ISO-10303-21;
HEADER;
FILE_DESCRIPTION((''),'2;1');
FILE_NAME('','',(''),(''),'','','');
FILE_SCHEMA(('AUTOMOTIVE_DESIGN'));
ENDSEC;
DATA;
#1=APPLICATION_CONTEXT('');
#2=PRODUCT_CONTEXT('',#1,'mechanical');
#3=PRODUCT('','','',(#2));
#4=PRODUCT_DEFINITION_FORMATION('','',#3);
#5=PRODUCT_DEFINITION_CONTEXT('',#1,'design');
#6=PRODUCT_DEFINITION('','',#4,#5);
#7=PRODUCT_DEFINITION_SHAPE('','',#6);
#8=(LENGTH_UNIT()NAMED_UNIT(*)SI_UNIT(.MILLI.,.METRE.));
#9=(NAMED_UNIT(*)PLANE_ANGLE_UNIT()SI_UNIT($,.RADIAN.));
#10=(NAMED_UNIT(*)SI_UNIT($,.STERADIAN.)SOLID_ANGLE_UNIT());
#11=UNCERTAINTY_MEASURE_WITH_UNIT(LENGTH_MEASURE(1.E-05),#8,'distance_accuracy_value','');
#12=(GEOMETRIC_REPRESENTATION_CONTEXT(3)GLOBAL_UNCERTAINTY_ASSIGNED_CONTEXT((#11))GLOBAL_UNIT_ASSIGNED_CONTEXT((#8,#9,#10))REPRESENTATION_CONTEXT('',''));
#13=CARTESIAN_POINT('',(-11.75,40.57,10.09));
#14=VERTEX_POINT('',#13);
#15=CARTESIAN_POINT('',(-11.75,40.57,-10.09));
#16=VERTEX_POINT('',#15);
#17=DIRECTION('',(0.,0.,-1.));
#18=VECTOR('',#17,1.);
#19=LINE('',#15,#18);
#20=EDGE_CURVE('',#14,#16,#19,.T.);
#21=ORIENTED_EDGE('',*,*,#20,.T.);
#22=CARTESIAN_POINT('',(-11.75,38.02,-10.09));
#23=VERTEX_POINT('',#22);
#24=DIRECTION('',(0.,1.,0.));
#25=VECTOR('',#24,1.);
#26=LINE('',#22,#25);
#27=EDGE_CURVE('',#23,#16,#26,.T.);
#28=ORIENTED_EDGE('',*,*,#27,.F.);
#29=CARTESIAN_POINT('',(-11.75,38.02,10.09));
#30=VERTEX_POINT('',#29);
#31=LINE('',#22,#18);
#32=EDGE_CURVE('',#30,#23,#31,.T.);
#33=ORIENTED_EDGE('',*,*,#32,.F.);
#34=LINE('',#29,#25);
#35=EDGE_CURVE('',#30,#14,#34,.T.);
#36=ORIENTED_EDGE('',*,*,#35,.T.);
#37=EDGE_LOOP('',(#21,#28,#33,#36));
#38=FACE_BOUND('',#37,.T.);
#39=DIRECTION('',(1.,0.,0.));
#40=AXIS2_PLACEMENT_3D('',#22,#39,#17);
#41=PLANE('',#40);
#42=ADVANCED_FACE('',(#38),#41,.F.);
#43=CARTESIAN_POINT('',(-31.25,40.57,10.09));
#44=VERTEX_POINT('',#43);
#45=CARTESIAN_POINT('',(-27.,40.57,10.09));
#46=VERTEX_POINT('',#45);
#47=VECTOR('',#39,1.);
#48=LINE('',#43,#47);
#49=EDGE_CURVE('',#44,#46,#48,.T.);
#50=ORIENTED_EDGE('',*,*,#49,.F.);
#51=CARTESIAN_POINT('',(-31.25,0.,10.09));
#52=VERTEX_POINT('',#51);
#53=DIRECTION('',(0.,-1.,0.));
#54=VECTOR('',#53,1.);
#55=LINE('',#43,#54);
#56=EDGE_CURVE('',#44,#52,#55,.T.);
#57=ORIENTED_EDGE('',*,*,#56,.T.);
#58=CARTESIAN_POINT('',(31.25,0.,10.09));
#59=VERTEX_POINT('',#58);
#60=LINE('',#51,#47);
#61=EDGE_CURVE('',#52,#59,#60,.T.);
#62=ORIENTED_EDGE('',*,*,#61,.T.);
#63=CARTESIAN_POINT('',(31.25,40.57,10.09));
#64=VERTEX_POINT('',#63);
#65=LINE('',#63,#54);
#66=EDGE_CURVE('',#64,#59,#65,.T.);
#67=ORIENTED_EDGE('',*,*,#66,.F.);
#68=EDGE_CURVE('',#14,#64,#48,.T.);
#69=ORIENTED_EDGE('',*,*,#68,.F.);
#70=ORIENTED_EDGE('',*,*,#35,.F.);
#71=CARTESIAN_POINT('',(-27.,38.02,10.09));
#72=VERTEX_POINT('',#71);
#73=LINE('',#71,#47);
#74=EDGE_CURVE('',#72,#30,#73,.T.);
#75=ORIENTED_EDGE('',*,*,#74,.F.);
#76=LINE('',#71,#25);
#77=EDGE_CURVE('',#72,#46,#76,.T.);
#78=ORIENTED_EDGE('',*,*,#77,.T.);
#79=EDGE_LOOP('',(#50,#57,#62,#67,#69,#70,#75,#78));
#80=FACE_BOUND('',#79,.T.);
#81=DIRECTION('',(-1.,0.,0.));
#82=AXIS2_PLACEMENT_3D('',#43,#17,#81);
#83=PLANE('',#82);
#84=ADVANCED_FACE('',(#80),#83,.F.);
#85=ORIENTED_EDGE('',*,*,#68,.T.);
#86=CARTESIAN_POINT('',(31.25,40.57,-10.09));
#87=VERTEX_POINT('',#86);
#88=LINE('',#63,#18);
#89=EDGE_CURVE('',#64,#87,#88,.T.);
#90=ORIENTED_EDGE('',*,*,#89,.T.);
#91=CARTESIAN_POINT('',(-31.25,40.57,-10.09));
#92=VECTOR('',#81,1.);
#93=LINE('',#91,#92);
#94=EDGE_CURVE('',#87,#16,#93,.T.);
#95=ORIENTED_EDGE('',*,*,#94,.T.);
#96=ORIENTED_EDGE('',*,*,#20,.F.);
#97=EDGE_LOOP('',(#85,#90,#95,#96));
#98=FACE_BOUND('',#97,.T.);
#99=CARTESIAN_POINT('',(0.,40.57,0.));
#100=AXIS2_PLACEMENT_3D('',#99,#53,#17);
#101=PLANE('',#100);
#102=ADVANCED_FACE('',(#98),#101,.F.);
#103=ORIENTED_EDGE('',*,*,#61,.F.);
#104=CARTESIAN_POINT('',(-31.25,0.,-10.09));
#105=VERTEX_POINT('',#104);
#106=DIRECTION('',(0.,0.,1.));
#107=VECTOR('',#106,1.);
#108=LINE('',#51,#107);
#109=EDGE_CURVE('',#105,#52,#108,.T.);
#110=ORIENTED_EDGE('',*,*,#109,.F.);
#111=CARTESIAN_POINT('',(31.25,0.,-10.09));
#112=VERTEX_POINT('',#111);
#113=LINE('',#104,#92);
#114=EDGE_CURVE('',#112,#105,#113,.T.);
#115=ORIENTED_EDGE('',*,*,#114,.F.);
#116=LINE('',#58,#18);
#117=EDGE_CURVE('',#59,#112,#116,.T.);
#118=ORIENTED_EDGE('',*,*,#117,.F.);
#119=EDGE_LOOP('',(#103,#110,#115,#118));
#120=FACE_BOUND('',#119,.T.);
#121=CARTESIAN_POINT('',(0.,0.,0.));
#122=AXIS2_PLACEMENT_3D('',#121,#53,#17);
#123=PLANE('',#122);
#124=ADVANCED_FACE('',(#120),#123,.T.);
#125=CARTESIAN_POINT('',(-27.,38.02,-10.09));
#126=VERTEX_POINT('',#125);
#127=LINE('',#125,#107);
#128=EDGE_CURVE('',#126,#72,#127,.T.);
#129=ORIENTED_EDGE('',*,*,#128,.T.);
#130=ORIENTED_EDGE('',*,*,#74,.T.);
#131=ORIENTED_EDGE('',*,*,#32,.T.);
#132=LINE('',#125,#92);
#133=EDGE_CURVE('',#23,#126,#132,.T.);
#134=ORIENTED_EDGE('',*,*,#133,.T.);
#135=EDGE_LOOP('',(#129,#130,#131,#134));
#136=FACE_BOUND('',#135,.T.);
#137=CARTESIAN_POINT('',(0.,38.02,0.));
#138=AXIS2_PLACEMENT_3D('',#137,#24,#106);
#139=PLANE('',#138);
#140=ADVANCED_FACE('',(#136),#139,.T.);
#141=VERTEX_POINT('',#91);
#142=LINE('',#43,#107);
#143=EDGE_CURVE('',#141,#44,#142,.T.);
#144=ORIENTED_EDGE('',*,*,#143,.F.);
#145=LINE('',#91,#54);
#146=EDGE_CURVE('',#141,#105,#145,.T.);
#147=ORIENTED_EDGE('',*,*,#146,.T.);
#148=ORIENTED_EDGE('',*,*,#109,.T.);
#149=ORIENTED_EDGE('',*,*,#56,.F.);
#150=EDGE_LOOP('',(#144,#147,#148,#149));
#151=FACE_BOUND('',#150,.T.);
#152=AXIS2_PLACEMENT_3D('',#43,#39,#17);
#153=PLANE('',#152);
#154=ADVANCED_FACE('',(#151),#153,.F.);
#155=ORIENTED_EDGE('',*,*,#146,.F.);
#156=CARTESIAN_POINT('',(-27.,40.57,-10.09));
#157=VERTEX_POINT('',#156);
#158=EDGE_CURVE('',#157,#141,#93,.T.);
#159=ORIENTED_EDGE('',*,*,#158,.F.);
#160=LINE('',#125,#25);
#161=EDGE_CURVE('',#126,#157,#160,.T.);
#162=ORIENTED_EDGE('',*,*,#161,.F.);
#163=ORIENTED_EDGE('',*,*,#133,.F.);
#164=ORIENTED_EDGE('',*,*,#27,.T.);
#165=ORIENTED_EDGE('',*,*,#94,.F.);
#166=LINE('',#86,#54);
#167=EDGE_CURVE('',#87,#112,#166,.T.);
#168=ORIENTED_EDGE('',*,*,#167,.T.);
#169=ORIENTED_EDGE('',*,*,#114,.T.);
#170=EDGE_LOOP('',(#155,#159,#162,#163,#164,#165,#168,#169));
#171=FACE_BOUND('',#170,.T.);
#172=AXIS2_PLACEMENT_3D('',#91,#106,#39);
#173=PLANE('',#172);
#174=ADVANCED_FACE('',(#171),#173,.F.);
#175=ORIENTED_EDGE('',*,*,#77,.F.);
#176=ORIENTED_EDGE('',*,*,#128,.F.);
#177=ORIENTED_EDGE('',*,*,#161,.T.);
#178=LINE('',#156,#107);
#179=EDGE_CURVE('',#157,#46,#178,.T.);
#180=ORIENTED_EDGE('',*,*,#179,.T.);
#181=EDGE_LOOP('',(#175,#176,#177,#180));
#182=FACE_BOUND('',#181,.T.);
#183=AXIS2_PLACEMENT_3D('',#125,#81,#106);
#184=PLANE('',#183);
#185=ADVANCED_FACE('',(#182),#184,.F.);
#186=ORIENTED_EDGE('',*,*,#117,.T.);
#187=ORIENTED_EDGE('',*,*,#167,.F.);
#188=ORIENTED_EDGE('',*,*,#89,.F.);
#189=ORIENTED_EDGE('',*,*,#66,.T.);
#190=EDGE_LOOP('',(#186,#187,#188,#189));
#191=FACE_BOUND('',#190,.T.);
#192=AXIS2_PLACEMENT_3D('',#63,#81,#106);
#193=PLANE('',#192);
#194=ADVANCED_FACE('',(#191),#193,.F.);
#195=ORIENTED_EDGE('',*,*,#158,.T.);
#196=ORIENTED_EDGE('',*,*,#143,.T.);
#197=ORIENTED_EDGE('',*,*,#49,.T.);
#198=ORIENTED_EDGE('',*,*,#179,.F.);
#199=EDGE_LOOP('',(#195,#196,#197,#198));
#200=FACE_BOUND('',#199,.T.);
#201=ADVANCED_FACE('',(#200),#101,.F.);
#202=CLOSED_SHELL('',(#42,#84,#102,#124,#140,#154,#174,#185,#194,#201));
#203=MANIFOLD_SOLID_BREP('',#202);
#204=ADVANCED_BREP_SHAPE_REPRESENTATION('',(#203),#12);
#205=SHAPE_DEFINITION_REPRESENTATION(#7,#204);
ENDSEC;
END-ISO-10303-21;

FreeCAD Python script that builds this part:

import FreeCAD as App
import Part
import Sketcher
from FreeCAD import Vector
Q = App.Units.Quantity

doc = App.newDocument("Part")
body = doc.addObject("PartDesign::Body", "Body")

sketch1 = body.newObject("Sketcher::SketchObject", "Sketch")
sketch1.AttachmentSupport = (doc.getObject("XZ_Plane"), [""])
sketch1.MapMode = "FlatFace"
sketch1.addGeometry(Part.LineSegment(Vector(-31.25, -10.09, 0), Vector(-31.25, 10.09, 0)), False)
sketch1.addGeometry(Part.LineSegment(Vector(-31.25, 10.09, 0), Vector(31.25, 10.09, 0)), False)
sketch1.addGeometry(Part.LineSegment(Vector(31.25, 10.09, 0), Vector(31.25, -10.09, 0)), False)
sketch1.addGeometry(Part.LineSegment(Vector(31.25, -10.09, 0), Vector(-31.25, -10.09, 0)), False)
sketch1.addConstraint(Sketcher.Constraint("Coincident", 0, 2, 1, 1))
sketch1.addConstraint(Sketcher.Constraint("Coincident", 1, 2, 2, 1))
sketch1.addConstraint(Sketcher.Constraint("Coincident", 2, 2, 3, 1))
sketch1.addConstraint(Sketcher.Constraint("Coincident", 3, 2, 0, 1))
sketch1.addConstraint(Sketcher.Constraint("Vertical", 0))
sketch1.addConstraint(Sketcher.Constraint("Horizontal", 1))
sketch1.addConstraint(Sketcher.Constraint("Vertical", 2))
sketch1.addConstraint(Sketcher.Constraint("Horizontal", 3))
sketch1.addConstraint(Sketcher.Constraint("Symmetric", 0, 2, 2, 2, -1, 1))
sketch1.addConstraint(Sketcher.Constraint("DistanceX", 1, 1, 1, 2, Q("62.5 mm")))
sketch1.addConstraint(Sketcher.Constraint("DistanceY", 0, 1, 0, 2, Q("20.18 mm")))
pad1 = body.newObject("PartDesign::Pad", "Pad")
pad1.Profile = sketch1
pad1.Length = 40.57
pad1.Reversed = True

sketch2 = body.newObject("Sketcher::SketchObject", "Sketch001")
sketch2.AttachmentSupport = (doc.getObject("XZ_Plane"), [""])
sketch2.MapMode = "FlatFace"
sketch2.AttachmentOffset = App.Placement(Vector(0, 0, -40.57), App.Rotation())
sketch2.addGeometry(Part.LineSegment(Vector(-27, -10.09, 0), Vector(-27, 10.09, 0)), False)
sketch2.addGeometry(Part.LineSegment(Vector(-27, 10.09, 0), Vector(-11.75, 10.09, 0)), False)
sketch2.addGeometry(Part.LineSegment(Vector(-11.75, 10.09, 0), Vector(-11.75, -10.09, 0)), False)
sketch2.addGeometry(Part.LineSegment(Vector(-11.75, -10.09, 0), Vector(-27, -10.09, 0)), False)
sketch2.addConstraint(Sketcher.Constraint("Coincident", 0, 2, 1, 1))
sketch2.addConstraint(Sketcher.Constraint("Coincident", 1, 2, 2, 1))
sketch2.addConstraint(Sketcher.Constraint("Coincident", 2, 2, 3, 1))
sketch2.addConstraint(Sketcher.Constraint("Coincident", 3, 2, 0, 1))
sketch2.addConstraint(Sketcher.Constraint("Vertical", 0))
sketch2.addConstraint(Sketcher.Constraint("Horizontal", 1))
sketch2.addConstraint(Sketcher.Constraint("Vertical", 2))
sketch2.addConstraint(Sketcher.Constraint("Horizontal", 3))
sketch2.addConstraint(Sketcher.Constraint("DistanceX", 0, 2, -1, 1, Q("27 mm")))
sketch2.addConstraint(Sketcher.Constraint("DistanceX", 1, 1, 1, 2, Q("15.25 mm")))
sketch2.addConstraint(Sketcher.Constraint("DistanceY", 0, 1, 0, 2, Q("20.18 mm")))
sketch2.addConstraint(Sketcher.Constraint("DistanceY", -1, 1, 0, 2, Q("10.09 mm")))
pocket1 = body.newObject("PartDesign::Pocket", "Pocket")
pocket1.Profile = sketch2
pocket1.Length = 2.55
pocket1.Reversed = True

doc.recompute()
